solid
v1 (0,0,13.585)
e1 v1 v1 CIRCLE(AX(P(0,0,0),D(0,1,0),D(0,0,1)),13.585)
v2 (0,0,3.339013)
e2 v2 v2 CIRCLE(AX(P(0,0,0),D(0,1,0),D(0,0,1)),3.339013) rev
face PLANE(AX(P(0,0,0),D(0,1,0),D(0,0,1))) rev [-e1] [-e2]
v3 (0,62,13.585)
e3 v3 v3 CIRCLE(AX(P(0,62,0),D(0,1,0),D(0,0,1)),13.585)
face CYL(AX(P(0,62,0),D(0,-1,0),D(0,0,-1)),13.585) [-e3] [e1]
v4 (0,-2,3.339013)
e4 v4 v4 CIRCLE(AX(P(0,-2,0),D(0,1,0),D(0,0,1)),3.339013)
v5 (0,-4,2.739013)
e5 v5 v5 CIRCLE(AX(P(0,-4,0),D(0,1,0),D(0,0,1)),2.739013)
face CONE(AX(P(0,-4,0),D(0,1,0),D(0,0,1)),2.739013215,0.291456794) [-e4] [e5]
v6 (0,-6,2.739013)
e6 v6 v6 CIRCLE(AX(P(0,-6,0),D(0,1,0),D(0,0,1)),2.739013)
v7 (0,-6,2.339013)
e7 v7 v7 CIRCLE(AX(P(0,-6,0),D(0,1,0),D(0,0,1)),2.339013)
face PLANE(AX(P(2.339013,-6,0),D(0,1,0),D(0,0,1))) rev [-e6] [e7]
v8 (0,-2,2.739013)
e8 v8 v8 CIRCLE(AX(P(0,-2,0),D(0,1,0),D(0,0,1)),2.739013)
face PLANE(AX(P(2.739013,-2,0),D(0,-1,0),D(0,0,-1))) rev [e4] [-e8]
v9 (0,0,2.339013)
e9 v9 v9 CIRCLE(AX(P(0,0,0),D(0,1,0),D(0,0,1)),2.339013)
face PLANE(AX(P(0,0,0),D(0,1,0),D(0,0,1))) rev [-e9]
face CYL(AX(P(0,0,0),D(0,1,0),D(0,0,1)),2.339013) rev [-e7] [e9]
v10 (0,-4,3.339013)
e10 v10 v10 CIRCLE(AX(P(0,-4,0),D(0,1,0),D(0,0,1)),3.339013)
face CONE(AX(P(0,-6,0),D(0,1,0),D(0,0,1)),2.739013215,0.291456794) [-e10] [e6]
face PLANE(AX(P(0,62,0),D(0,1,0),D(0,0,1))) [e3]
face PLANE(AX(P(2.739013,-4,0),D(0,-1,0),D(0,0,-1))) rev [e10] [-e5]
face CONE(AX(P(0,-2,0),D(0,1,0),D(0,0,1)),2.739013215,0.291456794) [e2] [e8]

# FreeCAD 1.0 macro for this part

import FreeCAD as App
import Part
import Sketcher

doc = App.newDocument("Part")
params = doc.addObject("Spreadsheet::Sheet", "Params")
for row, (alias, value) in enumerate([
    ("sketch1_diameter", "27.17 mm"),
    ("pad1_length", "62 mm"),
    ("sketch2_width", "1 mm"),
    ("sketch2_height", "6 mm"),
    ("sketch2_width2", "0.4 mm"),
    ("revolution_angle", "360 deg"),
], start=1):
    params.set(f"A{row}", alias)
    params.set(f"B{row}", "=" + value)
    params.setAlias(f"B{row}", alias)

body = doc.addObject("PartDesign::Body", "Body")

# Sketch on XZ plane
sketch1 = body.newObject("Sketcher::SketchObject", "Sketch")
sketch1.AttachmentSupport = (doc.getObject("XZ_Plane"), [""])
sketch1.MapMode = "FlatFace"
sketch1.addGeometry(Part.Circle(App.Vector(0, 0, 0), App.Vector(0, 0, 1), 14), False)
sketch1.addConstraint([
    Sketcher.Constraint("Coincident", 0, 3, -1, 1),
    Sketcher.Constraint("Diameter", 0, 27.17),
])
sketch1.setExpression("Constraints[1]", "Params.sketch1_diameter")
pad1 = body.newObject("PartDesign::Pad", "Pad")
pad1.Profile = sketch1
pad1.setExpression("Length", "Params.pad1_length")
pad1.Reversed = True

# Sketch on XY plane
sketch2 = body.newObject("Sketcher::SketchObject", "Sketch001")
sketch2.AttachmentSupport = (doc.getObject("XY_Plane"), [""])
sketch2.MapMode = "FlatFace"
sketch2.addGeometry([
    Part.LineSegment(App.Vector(2.34, -6, 0), App.Vector(2.74, -6, 0)),  # 0
    Part.LineSegment(App.Vector(2.74, -6, 0), App.Vector(3.34, -4, 0)),  # 1
    Part.LineSegment(App.Vector(3.34, -4, 0), App.Vector(2.74, -4, 0)),  # 2
    Part.LineSegment(App.Vector(2.74, -4, 0), App.Vector(3.34, -2, 0)),  # 3
    Part.LineSegment(App.Vector(3.34, -2, 0), App.Vector(2.74, -2, 0)),  # 4
    Part.LineSegment(App.Vector(2.74, -2, 0), App.Vector(3.34, 0, 0)),  # 5
    Part.LineSegment(App.Vector(3.34, 0, 0), App.Vector(2.34, 0, 0)),  # 6
    Part.LineSegment(App.Vector(2.34, 0, 0), App.Vector(2.34, -6, 0)),  # 7
], False)
sketch2.addConstraint([
    Sketcher.Constraint("Coincident", 0, 2, 1, 1),
    Sketcher.Constraint("Coincident", 1, 2, 2, 1),
    Sketcher.Constraint("Coincident", 2, 2, 3, 1),
    Sketcher.Constraint("Coincident", 3, 2, 4, 1),
    Sketcher.Constraint("Coincident", 4, 2, 5, 1),
    Sketcher.Constraint("Coincident", 5, 2, 6, 1),
    Sketcher.Constraint("Coincident", 6, 2, 7, 1),
    Sketcher.Constraint("Coincident", 7, 2, 0, 1),
    Sketcher.Constraint("Horizontal", 0),
    Sketcher.Constraint("Horizontal", 2),
    Sketcher.Constraint("Horizontal", 4),
    Sketcher.Constraint("Horizontal", 6),
    Sketcher.Constraint("Vertical", 7),
    Sketcher.Constraint("PointOnObject", 5, 2, -1),
    Sketcher.Constraint("Parallel", 1, 3),
    Sketcher.Constraint("Parallel", 3, 5),
    Sketcher.Constraint("Vertical", 0, 2, 2, 2),
    Sketcher.Constraint("Vertical", 1, 2, 3, 2),
    Sketcher.Constraint("Vertical", 2, 2, 4, 2),
    Sketcher.Constraint("Vertical", 3, 2, 5, 2),
    Sketcher.Constraint("DistanceX", 6, 2, 6, 1, 1.0),
    Sketcher.Constraint("DistanceY", 7, 2, 7, 1, 6.0),
    Sketcher.Constraint("DistanceX", 0, 1, 0, 2, 0.4),
    Sketcher.Constraint("DistanceX", -1, 1, 0, 2, 2.739013),
])
sketch2.setExpression("Constraints[20]", "Params.sketch2_width")
sketch2.setExpression("Constraints[21]", "Params.sketch2_height")
sketch2.setExpression("Constraints[22]", "Params.sketch2_width2")
revolution = body.newObject("PartDesign::Revolution", "Revolution")
revolution.Profile = sketch2
revolution.ReferenceAxis = (sketch2, ["V_Axis"])
revolution.setExpression("Angle", "Params.revolution_angle")

doc.recompute()
